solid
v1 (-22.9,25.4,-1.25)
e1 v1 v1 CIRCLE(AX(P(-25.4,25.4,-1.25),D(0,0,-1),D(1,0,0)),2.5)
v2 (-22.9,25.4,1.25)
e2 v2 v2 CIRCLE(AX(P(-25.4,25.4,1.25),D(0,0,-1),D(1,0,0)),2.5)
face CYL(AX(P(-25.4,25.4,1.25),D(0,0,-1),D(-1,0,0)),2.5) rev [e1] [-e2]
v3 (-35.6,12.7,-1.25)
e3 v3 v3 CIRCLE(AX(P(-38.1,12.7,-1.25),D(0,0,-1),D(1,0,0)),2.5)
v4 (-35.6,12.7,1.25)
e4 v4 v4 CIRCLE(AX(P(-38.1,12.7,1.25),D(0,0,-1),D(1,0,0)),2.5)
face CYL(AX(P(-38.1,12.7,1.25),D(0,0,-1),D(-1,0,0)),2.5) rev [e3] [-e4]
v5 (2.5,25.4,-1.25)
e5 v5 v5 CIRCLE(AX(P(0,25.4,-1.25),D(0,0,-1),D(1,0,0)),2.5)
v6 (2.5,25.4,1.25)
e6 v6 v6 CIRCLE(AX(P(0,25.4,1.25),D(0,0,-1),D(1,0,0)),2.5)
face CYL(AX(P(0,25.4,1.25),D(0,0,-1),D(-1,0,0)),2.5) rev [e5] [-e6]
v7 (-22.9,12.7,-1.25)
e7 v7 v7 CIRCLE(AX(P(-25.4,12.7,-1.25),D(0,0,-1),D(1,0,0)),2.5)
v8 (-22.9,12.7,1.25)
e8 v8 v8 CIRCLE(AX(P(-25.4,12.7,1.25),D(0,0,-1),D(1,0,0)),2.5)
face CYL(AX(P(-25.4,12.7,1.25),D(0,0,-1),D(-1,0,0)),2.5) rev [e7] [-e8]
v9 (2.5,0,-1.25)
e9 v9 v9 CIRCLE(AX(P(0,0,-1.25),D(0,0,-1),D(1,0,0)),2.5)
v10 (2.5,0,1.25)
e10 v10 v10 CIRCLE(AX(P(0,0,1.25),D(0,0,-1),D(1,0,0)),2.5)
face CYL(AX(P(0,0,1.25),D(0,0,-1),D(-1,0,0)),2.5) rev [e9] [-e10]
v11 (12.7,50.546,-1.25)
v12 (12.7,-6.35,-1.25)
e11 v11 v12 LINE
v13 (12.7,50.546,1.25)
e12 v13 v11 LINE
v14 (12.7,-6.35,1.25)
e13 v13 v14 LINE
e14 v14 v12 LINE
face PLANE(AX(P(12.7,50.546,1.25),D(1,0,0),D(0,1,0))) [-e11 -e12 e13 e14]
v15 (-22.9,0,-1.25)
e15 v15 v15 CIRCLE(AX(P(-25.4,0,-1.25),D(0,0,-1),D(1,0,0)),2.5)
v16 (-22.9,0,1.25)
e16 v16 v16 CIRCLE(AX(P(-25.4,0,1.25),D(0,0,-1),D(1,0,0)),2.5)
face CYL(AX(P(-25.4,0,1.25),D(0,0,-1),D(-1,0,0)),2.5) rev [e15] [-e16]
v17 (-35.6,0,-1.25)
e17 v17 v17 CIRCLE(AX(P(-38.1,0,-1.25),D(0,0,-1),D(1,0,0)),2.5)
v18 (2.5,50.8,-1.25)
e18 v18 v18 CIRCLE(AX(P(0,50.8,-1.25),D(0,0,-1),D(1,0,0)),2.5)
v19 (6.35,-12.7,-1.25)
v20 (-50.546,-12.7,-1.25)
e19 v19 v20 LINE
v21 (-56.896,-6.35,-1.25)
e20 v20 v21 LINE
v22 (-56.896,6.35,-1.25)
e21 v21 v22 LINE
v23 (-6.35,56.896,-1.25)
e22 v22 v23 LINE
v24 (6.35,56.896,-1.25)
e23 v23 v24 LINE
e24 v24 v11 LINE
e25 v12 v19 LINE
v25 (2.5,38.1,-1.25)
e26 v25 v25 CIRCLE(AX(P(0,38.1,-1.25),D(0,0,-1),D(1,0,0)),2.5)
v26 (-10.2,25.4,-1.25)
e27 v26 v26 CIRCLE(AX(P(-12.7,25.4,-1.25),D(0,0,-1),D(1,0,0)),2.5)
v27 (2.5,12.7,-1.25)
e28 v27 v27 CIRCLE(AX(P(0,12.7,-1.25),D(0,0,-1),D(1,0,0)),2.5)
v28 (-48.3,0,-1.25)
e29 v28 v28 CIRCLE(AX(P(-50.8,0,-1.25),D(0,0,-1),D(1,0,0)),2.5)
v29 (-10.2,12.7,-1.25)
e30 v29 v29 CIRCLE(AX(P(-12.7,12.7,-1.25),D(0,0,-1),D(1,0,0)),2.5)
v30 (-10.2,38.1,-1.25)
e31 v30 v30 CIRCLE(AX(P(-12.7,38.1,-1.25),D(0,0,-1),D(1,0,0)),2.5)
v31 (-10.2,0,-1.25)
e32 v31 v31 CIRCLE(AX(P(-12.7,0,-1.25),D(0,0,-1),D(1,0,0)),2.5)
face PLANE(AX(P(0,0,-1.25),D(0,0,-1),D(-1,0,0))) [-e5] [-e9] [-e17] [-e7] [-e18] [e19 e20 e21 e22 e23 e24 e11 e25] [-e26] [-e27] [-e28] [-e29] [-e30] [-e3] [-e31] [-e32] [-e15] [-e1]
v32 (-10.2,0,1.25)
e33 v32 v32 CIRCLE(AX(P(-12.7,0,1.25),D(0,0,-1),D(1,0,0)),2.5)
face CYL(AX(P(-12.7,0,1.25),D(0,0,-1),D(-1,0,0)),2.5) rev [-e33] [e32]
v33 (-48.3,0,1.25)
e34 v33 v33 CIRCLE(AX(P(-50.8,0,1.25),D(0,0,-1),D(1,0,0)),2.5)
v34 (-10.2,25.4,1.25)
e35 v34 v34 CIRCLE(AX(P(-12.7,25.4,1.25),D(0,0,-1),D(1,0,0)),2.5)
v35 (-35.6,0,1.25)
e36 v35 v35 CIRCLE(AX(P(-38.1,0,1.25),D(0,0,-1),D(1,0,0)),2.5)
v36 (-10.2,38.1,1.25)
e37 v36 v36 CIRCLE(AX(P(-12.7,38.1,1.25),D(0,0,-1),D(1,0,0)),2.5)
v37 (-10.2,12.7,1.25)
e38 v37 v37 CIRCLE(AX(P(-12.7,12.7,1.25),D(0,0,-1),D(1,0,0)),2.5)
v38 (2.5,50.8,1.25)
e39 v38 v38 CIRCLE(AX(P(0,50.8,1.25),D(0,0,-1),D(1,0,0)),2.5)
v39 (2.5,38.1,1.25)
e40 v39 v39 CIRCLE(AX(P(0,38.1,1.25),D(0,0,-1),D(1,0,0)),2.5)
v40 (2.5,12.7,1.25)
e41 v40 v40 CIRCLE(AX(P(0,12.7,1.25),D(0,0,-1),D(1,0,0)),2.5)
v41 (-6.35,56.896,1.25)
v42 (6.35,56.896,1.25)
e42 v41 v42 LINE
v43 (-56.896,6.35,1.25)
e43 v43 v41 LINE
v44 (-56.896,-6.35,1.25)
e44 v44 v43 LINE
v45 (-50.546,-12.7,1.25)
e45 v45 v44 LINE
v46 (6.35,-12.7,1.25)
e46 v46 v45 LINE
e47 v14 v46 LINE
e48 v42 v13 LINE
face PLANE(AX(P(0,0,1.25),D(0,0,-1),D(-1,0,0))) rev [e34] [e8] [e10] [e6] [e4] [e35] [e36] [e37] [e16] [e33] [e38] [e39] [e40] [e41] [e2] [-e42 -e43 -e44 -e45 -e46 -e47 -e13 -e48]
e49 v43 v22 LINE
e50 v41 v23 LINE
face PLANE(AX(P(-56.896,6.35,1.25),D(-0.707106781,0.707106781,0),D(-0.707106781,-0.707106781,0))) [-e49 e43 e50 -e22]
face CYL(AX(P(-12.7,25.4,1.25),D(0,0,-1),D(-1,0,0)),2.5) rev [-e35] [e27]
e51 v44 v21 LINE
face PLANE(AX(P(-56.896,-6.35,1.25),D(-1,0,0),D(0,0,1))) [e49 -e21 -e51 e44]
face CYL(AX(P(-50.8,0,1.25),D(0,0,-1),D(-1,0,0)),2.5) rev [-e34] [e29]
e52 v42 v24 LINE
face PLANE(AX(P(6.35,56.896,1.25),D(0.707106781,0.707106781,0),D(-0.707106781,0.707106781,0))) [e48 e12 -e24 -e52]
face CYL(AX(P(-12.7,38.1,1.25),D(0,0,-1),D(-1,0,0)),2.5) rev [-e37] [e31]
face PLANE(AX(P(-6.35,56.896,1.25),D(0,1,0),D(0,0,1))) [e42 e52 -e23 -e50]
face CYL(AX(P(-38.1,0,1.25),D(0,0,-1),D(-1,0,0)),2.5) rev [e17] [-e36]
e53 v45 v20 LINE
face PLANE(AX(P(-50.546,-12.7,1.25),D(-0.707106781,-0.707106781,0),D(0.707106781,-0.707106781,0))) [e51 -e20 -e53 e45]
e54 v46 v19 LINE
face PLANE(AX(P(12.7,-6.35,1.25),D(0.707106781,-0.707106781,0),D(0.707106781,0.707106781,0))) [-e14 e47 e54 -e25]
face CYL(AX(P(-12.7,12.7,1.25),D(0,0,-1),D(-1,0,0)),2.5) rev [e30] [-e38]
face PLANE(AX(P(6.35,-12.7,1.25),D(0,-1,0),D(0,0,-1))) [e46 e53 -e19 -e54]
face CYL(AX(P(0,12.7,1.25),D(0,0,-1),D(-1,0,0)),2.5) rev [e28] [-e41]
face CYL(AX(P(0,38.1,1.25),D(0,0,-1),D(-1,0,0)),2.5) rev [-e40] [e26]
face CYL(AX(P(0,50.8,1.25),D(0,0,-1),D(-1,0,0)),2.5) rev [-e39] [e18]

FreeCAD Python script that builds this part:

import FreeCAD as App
import Part
import Sketcher

V = App.Vector
Q = App.Units.Quantity


def add_polygon(sketch, points):
    """Adds a closed chain of lines whose ends are joined by coincident constraints."""
    first, n = sketch.GeometryCount, len(points)
    for a, b in zip(points, points[1:] + points[:1]):
        sketch.addGeometry(Part.LineSegment(App.Vector(*a, 0), App.Vector(*b, 0)), False)
    for i in range(n):
        sketch.addConstraint(Sketcher.Constraint("Coincident", first + i, 2, first + (i + 1) % n, 1))

doc = App.newDocument("Part")
body = doc.addObject("PartDesign::Body", "Body")

# Sketch on XY plane
sketch1 = body.newObject("Sketcher::SketchObject", "Sketch")
sketch1.AttachmentSupport = (doc.getObject("XY_Plane"), [""])
sketch1.MapMode = "FlatFace"
sketch1.AttachmentOffset = App.Placement(V(0, 0, -1.25), App.Rotation())
add_polygon(sketch1, [(6.3, -12.7), (-50.5, -12.7), (-56.9, -6.3), (-56.9, 6.3), (-6.3, 56.9), (6.3, 56.9), (12.7, 50.5), (12.7, -6.3)])  # lines 0-7
sketch1.addGeometry(Part.Circle(V(0, 0, 0), V(0, 0, 1), 2.5), False)  # 8
sketch1.addGeometry(Part.Circle(V(-12.7, 0, 0), V(0, 0, 1), 2.5), False)  # 9
sketch1.addGeometry(Part.Circle(V(0, 12.7, 0), V(0, 0, 1), 2.5), False)  # 10
sketch1.addGeometry(Part.Circle(V(-12.7, 12.7, 0), V(0, 0, 1), 2.5), False)  # 11
sketch1.addGeometry(Part.Circle(V(-25.4, 0, 0), V(0, 0, 1), 2.5), False)  # 12
sketch1.addGeometry(Part.Circle(V(-38.1, 0, 0), V(0, 0, 1), 2.5), False)  # 13
sketch1.addGeometry(Part.Circle(V(-50.8, 0, 0), V(0, 0, 1), 2.5), False)  # 14
sketch1.addGeometry(Part.Circle(V(-25.4, 12.7, 0), V(0, 0, 1), 2.5), False)  # 15
sketch1.addGeometry(Part.Circle(V(-38.1, 12.7, 0), V(0, 0, 1), 2.5), False)  # 16
sketch1.addGeometry(Part.Circle(V(0, 25.4, 0), V(0, 0, 1), 2.5), False)  # 17
sketch1.addGeometry(Part.Circle(V(0, 38.1, 0), V(0, 0, 1), 2.5), False)  # 18
sketch1.addGeometry(Part.Circle(V(-12.7, 25.4, 0), V(0, 0, 1), 2.5), False)  # 19
sketch1.addGeometry(Part.Circle(V(-12.7, 38.1, 0), V(0, 0, 1), 2.5), False)  # 20
sketch1.addGeometry(Part.Circle(V(0, 50.8, 0), V(0, 0, 1), 2.5), False)  # 21
sketch1.addGeometry(Part.Circle(V(-25.4, 25.4, 0), V(0, 0, 1), 2.5), False)  # 22
sketch1.addConstraint(Sketcher.Constraint("Horizontal", 0))
sketch1.addConstraint(Sketcher.Constraint("Vertical", 2))
sketch1.addConstraint(Sketcher.Constraint("Horizontal", 4))
sketch1.addConstraint(Sketcher.Constraint("Vertical", 6))
sketch1.addConstraint(Sketcher.Constraint("Coincident", 8, 3, -1, 1))
sketch1.addConstraint(Sketcher.Constraint("Equal", 8, 9))
sketch1.addConstraint(Sketcher.Constraint("Equal", 9, 10))
sketch1.addConstraint(Sketcher.Constraint("Equal", 10, 11))
sketch1.addConstraint(Sketcher.Constraint("Equal", 11, 12))
sketch1.addConstraint(Sketcher.Constraint("Equal", 12, 13))
sketch1.addConstraint(Sketcher.Constraint("Equal", 13, 14))
sketch1.addConstraint(Sketcher.Constraint("Equal", 14, 15))
sketch1.addConstraint(Sketcher.Constraint("Equal", 15, 16))
sketch1.addConstraint(Sketcher.Constraint("Equal", 16, 17))
sketch1.addConstraint(Sketcher.Constraint("Equal", 17, 18))
sketch1.addConstraint(Sketcher.Constraint("Equal", 18, 19))
sketch1.addConstraint(Sketcher.Constraint("Equal", 19, 20))
sketch1.addConstraint(Sketcher.Constraint("Equal", 20, 21))
sketch1.addConstraint(Sketcher.Constraint("Equal", 21, 22))
sketch1.addConstraint(Sketcher.Constraint("PointOnObject", 9, 3, -1))
sketch1.addConstraint(Sketcher.Constraint("PointOnObject", 10, 3, -2))
sketch1.addConstraint(Sketcher.Constraint("PointOnObject", 12, 3, -1))
sketch1.addConstraint(Sketcher.Constraint("PointOnObject", 13, 3, -1))
sketch1.addConstraint(Sketcher.Constraint("PointOnObject", 14, 3, -1))
sketch1.addConstraint(Sketcher.Constraint("PointOnObject", 17, 3, -2))
sketch1.addConstraint(Sketcher.Constraint("PointOnObject", 18, 3, -2))
sketch1.addConstraint(Sketcher.Constraint("PointOnObject", 21, 3, -2))
sketch1.addConstraint(Sketcher.Constraint("Perpendicular", 1, 3))
sketch1.addConstraint(Sketcher.Constraint("Perpendicular", 3, 5))
sketch1.addConstraint(Sketcher.Constraint("Perpendicular", 5, 7))
sketch1.addConstraint(Sketcher.Constraint("Horizontal", 10, 3, 11, 3))
sketch1.addConstraint(Sketcher.Constraint("Horizontal", 11, 3, 15, 3))
sketch1.addConstraint(Sketcher.Constraint("Horizontal", 15, 3, 16, 3))
sketch1.addConstraint(Sketcher.Constraint("Horizontal", 17, 3, 19, 3))
sketch1.addConstraint(Sketcher.Constraint("Horizontal", 18, 3, 20, 3))
sketch1.addConstraint(Sketcher.Constraint("Horizontal", 19, 3, 22, 3))
sketch1.addConstraint(Sketcher.Constraint("Horizontal", 1, 2, 6, 2))
sketch1.addConstraint(Sketcher.Constraint("Vertical", 9, 3, 11, 3))
sketch1.addConstraint(Sketcher.Constraint("Vertical", 12, 3, 15, 3))
sketch1.addConstraint(Sketcher.Constraint("Vertical", 13, 3, 16, 3))
sketch1.addConstraint(Sketcher.Constraint("Vertical", 11, 3, 19, 3))
sketch1.addConstraint(Sketcher.Constraint("Vertical", 19, 3, 20, 3))
sketch1.addConstraint(Sketcher.Constraint("Vertical", 15, 3, 22, 3))
sketch1.addConstraint(Sketcher.Constraint("Vertical", 4, 2, 7, 2))
sketch1.addConstraint(Sketcher.Constraint("Equal", 4, 2))
sketch1.addConstraint(Sketcher.Constraint("Equal", 0, 6))
sketch1.addConstraint(Sketcher.Constraint("Diameter", 8, Q("5 mm")))
sketch1.addConstraint(Sketcher.Constraint("DistanceX", 4, 1, 4, 2, Q("12.7 mm")))
sketch1.addConstraint(Sketcher.Constraint("DistanceX", 9, 3, -1, 1, Q("12.7 mm")))
sketch1.addConstraint(Sketcher.Constraint("DistanceY", -1, 1, 10, 3, Q("12.7 mm")))
sketch1.addConstraint(Sketcher.Constraint("DistanceX", 12, 3, -1, 1, Q("25.4 mm")))
sketch1.addConstraint(Sketcher.Constraint("DistanceX", 13, 3, -1, 1, Q("38.1 mm")))
sketch1.addConstraint(Sketcher.Constraint("DistanceX", 14, 3, -1, 1, Q("50.8 mm")))
sketch1.addConstraint(Sketcher.Constraint("DistanceY", -1, 1, 17, 3, Q("25.4 mm")))
sketch1.addConstraint(Sketcher.Constraint("DistanceY", -1, 1, 18, 3, Q("38.1 mm")))
sketch1.addConstraint(Sketcher.Constraint("DistanceY", -1, 1, 21, 3, Q("50.8 mm")))
sketch1.addConstraint(Sketcher.Constraint("DistanceY", 0, 2, -1, 1, Q("12.7 mm")))
sketch1.addConstraint(Sketcher.Constraint("DistanceX", -1, 1, 5, 2, Q("12.7 mm")))
sketch1.addConstraint(Sketcher.Constraint("DistanceX", 0, 2, 0, 1, Q("56.896 mm")))
sketch1.addConstraint(Sketcher.Constraint("DistanceY", 1, 2, -1, 1, Q("6.35 mm")))
pad1 = body.newObject("PartDesign::Pad", "Pad")
pad1.Profile = sketch1
pad1.Length = 2.5

doc.recompute()
